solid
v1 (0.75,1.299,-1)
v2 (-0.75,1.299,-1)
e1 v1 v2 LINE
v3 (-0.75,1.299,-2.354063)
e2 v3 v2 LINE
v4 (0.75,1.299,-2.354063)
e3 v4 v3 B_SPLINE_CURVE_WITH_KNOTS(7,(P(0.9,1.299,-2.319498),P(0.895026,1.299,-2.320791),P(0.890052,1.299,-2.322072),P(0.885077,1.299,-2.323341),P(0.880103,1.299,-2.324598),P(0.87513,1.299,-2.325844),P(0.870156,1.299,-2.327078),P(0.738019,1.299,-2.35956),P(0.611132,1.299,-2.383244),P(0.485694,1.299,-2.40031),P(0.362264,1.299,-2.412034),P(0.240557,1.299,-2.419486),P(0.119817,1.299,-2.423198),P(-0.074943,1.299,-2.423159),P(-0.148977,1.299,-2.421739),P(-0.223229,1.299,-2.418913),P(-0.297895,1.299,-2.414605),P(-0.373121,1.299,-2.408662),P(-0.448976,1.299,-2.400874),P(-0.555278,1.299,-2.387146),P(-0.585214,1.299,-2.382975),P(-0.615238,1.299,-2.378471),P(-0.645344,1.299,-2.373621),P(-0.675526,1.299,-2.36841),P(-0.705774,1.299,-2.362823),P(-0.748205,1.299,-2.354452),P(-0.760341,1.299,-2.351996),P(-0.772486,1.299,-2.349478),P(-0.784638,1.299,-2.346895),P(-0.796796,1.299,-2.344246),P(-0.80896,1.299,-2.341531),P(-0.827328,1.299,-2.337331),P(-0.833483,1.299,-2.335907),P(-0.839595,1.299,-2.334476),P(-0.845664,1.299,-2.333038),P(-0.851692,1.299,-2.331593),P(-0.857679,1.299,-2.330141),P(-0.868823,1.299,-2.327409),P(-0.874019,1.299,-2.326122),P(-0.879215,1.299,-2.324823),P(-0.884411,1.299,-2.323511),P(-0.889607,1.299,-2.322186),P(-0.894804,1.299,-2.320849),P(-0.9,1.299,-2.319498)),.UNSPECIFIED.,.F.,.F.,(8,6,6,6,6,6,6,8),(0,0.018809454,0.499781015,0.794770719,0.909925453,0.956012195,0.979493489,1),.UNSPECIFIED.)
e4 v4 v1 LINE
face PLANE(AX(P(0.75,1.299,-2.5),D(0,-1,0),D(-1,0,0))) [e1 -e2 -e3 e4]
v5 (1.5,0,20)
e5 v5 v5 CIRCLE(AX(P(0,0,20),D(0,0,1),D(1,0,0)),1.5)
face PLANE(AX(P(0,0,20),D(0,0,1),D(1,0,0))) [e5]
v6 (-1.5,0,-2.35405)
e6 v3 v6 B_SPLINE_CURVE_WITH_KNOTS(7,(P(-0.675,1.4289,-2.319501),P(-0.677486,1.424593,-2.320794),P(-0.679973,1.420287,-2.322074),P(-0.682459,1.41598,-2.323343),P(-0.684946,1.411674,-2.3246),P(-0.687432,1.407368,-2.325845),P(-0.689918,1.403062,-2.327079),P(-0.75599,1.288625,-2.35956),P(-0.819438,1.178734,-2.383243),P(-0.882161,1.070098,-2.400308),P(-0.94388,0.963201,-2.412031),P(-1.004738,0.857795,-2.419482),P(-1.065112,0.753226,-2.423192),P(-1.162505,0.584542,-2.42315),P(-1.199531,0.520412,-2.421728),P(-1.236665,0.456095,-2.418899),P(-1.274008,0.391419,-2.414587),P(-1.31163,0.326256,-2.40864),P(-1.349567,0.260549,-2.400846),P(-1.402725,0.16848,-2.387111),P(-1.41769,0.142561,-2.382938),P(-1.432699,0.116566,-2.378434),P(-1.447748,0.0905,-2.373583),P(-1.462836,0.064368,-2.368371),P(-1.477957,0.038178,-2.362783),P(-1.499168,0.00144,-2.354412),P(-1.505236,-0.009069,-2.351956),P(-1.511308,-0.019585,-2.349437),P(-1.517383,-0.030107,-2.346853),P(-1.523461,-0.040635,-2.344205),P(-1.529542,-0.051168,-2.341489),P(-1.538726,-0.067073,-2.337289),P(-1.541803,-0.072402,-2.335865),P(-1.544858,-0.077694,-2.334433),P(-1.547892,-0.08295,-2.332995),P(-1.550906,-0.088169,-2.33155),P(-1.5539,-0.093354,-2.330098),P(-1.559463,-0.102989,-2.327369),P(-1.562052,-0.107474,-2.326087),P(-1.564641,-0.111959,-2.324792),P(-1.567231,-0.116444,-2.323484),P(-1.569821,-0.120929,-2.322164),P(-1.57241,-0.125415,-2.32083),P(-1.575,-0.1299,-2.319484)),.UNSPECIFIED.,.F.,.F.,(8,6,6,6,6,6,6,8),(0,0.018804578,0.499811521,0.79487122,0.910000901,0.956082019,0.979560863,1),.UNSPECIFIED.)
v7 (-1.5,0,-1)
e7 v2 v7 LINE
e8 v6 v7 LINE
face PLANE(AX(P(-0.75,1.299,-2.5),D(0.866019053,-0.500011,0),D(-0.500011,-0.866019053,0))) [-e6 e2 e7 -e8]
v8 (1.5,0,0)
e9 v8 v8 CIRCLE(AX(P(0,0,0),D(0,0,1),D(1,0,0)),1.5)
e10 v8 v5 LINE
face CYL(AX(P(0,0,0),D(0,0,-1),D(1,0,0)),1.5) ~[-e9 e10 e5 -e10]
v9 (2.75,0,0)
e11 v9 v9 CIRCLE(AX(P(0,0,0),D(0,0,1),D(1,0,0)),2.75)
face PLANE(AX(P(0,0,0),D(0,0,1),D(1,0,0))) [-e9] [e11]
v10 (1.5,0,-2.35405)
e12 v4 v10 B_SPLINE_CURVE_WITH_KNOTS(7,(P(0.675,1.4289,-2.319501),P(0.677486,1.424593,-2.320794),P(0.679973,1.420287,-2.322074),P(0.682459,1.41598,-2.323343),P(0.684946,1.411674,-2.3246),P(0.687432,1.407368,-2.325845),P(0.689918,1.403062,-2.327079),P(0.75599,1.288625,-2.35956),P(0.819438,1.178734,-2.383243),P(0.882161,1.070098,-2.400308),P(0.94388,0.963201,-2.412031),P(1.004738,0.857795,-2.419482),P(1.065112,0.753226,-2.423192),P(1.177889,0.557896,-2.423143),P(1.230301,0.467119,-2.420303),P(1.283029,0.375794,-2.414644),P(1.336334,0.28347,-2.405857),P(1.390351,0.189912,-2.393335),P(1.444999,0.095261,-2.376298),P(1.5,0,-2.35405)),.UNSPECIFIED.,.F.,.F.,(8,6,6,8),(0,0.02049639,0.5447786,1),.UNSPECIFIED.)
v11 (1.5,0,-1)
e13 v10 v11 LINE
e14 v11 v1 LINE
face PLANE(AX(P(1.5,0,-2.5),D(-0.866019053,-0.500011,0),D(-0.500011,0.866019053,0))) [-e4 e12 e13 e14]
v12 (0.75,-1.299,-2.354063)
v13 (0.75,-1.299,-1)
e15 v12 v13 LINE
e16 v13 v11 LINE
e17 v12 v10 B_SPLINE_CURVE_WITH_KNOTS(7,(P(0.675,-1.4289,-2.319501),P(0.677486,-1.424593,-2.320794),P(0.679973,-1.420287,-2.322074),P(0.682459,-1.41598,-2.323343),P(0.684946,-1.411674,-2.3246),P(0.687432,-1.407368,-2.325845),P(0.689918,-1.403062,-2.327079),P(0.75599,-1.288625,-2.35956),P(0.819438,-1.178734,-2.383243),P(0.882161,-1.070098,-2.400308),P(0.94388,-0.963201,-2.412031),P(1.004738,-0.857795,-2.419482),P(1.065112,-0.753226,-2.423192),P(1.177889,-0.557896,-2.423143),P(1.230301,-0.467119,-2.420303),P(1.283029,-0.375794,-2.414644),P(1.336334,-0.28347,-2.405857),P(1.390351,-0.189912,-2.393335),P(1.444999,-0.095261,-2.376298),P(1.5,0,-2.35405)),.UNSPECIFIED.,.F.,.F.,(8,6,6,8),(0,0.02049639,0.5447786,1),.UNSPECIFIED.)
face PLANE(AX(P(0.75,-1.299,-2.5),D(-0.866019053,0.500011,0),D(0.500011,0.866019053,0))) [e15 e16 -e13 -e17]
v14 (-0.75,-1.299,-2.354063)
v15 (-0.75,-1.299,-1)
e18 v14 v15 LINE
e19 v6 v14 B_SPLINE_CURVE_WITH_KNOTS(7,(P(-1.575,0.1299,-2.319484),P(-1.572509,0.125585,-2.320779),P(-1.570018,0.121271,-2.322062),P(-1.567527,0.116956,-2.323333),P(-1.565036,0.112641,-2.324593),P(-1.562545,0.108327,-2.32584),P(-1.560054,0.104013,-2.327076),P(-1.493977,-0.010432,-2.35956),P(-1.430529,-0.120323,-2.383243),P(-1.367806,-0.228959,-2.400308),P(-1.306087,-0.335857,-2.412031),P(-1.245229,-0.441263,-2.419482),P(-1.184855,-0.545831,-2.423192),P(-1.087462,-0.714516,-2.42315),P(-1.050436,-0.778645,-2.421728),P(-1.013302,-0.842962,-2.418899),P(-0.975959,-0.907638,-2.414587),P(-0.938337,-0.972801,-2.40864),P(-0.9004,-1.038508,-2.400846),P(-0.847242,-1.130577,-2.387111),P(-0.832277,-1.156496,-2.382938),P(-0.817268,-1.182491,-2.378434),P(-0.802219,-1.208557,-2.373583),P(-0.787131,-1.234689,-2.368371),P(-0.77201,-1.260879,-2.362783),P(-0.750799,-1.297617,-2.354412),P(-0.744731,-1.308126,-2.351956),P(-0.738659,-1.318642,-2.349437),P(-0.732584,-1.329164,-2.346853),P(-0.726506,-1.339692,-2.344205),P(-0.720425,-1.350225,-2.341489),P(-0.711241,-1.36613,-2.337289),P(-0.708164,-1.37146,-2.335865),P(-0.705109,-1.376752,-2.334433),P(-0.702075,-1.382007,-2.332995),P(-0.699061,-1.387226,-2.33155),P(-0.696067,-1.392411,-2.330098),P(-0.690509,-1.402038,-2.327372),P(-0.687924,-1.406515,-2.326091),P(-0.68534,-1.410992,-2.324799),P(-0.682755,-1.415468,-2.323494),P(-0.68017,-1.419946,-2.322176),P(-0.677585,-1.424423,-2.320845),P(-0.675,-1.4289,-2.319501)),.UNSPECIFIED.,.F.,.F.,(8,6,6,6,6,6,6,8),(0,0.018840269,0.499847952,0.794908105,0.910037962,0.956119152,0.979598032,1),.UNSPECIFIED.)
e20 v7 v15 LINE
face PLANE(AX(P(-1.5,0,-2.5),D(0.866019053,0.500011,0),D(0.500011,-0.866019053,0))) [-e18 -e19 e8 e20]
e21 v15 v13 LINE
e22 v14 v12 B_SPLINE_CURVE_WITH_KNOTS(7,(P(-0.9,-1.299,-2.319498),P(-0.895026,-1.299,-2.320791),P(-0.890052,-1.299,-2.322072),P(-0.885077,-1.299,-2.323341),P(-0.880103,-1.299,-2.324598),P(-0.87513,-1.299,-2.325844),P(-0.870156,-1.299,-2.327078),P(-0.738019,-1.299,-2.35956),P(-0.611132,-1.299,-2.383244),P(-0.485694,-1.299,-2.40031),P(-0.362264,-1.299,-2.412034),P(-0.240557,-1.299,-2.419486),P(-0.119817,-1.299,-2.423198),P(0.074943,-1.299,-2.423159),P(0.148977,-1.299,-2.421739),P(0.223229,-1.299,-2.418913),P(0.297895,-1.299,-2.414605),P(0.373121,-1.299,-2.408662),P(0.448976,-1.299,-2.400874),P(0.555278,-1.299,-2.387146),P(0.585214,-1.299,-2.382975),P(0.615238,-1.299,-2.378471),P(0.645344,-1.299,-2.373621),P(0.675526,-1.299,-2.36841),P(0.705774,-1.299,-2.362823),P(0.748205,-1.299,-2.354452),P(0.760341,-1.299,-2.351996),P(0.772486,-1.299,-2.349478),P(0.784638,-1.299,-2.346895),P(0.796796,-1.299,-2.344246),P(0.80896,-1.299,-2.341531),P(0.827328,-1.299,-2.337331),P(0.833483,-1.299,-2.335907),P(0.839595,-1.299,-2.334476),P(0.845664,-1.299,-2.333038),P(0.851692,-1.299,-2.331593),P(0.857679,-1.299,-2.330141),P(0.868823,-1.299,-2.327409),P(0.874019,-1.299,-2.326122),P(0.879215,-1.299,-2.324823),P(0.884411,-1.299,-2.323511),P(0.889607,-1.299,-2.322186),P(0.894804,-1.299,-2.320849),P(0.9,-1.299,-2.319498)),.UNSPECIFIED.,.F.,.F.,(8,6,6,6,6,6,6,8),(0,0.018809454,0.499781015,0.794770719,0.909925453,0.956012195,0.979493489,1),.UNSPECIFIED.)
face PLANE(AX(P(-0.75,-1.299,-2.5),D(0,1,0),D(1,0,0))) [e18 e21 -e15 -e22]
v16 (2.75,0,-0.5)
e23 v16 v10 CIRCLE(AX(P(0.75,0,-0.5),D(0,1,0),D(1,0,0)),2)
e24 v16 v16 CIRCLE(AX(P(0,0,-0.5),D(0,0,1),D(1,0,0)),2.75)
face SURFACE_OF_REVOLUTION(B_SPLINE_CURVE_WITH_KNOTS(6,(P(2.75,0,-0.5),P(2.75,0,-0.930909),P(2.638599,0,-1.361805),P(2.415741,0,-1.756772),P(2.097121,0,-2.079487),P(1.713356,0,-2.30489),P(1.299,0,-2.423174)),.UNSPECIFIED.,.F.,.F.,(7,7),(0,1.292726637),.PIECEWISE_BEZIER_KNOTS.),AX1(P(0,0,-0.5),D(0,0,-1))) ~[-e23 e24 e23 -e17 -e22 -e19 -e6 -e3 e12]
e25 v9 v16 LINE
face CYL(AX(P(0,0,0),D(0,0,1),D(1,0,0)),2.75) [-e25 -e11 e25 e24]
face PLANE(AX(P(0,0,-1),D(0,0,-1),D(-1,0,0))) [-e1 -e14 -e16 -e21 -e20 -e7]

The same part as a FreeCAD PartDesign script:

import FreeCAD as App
import Part
import Sketcher
from FreeCAD import Vector
Q = App.Units.Quantity


def edges_at(feature, points):
    """Names of the edges that pass closest to the given points."""
    edges = feature.Shape.Edges
    near = lambda p: min(range(len(edges)), key=lambda i: edges[i].distToShape(Part.Vertex(*p))[0])
    return sorted({f"Edge{near(p) + 1}" for p in points})

doc = App.newDocument("Part")
params = doc.addObject("Spreadsheet::Sheet", "Params")
for row, (alias, value) in enumerate([
    ("sketch1_diameter", "3 mm"),
    ("pad1_length", "20 mm"),
    ("sketch2_diameter", "5.5 mm"),
    ("pad2_length", "2.5 mm"),
    ("fillet_radius", "2 mm"),
    ("sketch3_width", "1.5 mm"),
    ("pocket1_length", "1.5 mm"),
], start=1):
    params.set(f"A{row}", alias)
    params.set(f"B{row}", "=" + value)
    params.setAlias(f"B{row}", alias)

body = doc.addObject("PartDesign::Body", "Body")

sketch1 = body.newObject("Sketcher::SketchObject", "Sketch")
sketch1.AttachmentSupport = (doc.getObject("XY_Plane"), [""])
sketch1.MapMode = "FlatFace"
sketch1.addGeometry(Part.Circle(Vector(0, 0, 0), Vector(0, 0, 1), 1.5), False)
sketch1.addConstraint(Sketcher.Constraint("Coincident", 0, 3, -1, 1))
sketch1.addConstraint(Sketcher.Constraint("Diameter", 0, 3.0))
sketch1.setExpression("Constraints[1]", "Params.sketch1_diameter")
pad1 = body.newObject("PartDesign::Pad", "Pad")
pad1.Profile = sketch1
pad1.setExpression("Length", "Params.pad1_length")

sketch2 = body.newObject("Sketcher::SketchObject", "Sketch001")
sketch2.AttachmentSupport = (doc.getObject("XY_Plane"), [""])
sketch2.MapMode = "FlatFace"
sketch2.addGeometry(Part.Circle(Vector(0, 0, 0), Vector(0, 0, 1), 2.8), False)
sketch2.addConstraint(Sketcher.Constraint("Coincident", 0, 3, -1, 1))
sketch2.addConstraint(Sketcher.Constraint("Diameter", 0, 5.5))
sketch2.setExpression("Constraints[1]", "Params.sketch2_diameter")
pad2 = body.newObject("PartDesign::Pad", "Pad001")
pad2.Profile = sketch2
pad2.setExpression("Length", "Params.pad2_length")
pad2.Reversed = True
doc.recompute()

fillet = body.newObject("PartDesign::Fillet", "Fillet")
fillet.Base = (pad2, edges_at(pad2, [(-2.75, 0, -2.5)]))
fillet.setExpression("Radius", "Params.fillet_radius")

sketch3 = body.newObject("Sketcher::SketchObject", "Sketch002")
sketch3.AttachmentSupport = (doc.getObject("XY_Plane"), [""])
sketch3.MapMode = "FlatFace"
sketch3.AttachmentOffset = App.Placement(Vector(0, 0, -2.5), App.Rotation())
sketch3.addGeometry(Part.LineSegment(Vector(-0.8, -1.3, 0), Vector(-1.5, 0, 0)), False)
sketch3.addGeometry(Part.LineSegment(Vector(-1.5, 0, 0), Vector(-0.8, 1.3, 0)), False)
sketch3.addGeometry(Part.LineSegment(Vector(-0.8, 1.3, 0), Vector(0.8, 1.3, 0)), False)
sketch3.addGeometry(Part.LineSegment(Vector(0.8, 1.3, 0), Vector(1.5, 0, 0)), False)
sketch3.addGeometry(Part.LineSegment(Vector(1.5, 0, 0), Vector(0.8, -1.3, 0)), False)
sketch3.addGeometry(Part.LineSegment(Vector(0.8, -1.3, 0), Vector(-0.8, -1.3, 0)), False)
sketch3.addConstraint(Sketcher.Constraint("Coincident", 0, 2, 1, 1))
sketch3.addConstraint(Sketcher.Constraint("Coincident", 1, 2, 2, 1))
sketch3.addConstraint(Sketcher.Constraint("Coincident", 2, 2, 3, 1))
sketch3.addConstraint(Sketcher.Constraint("Coincident", 3, 2, 4, 1))
sketch3.addConstraint(Sketcher.Constraint("Coincident", 4, 2, 5, 1))
sketch3.addConstraint(Sketcher.Constraint("Coincident", 5, 2, 0, 1))
sketch3.addConstraint(Sketcher.Constraint("Horizontal", 2))
sketch3.addConstraint(Sketcher.Constraint("Horizontal", 5))
sketch3.addConstraint(Sketcher.Constraint("Symmetric", 0, 2, 3, 2, -1, 1))
sketch3.addConstraint(Sketcher.Constraint("Symmetric", 1, 2, 4, 2, -1, 1))
sketch3.addConstraint(Sketcher.Constraint("PointOnObject", 0, 2, -1))
sketch3.addConstraint(Sketcher.Constraint("Parallel", 0, 3))
sketch3.addConstraint(Sketcher.Constraint("Vertical", 2, 2, 4, 2))
sketch3.addConstraint(Sketcher.Constraint("DistanceX", 0, 2, 3, 2, 3.0))
sketch3.addConstraint(Sketcher.Constraint("Angle", 0, Q("120.0007 deg")))
sketch3.addConstraint(Sketcher.Constraint("DistanceX", 2, 1, 2, 2, 1.5))
sketch3.setExpression("Constraints[15]", "Params.sketch3_width")
pocket1 = body.newObject("PartDesign::Pocket", "Pocket")
pocket1.Profile = sketch3
pocket1.setExpression("Length", "Params.pocket1_length")
pocket1.Reversed = True

doc.recompute()
